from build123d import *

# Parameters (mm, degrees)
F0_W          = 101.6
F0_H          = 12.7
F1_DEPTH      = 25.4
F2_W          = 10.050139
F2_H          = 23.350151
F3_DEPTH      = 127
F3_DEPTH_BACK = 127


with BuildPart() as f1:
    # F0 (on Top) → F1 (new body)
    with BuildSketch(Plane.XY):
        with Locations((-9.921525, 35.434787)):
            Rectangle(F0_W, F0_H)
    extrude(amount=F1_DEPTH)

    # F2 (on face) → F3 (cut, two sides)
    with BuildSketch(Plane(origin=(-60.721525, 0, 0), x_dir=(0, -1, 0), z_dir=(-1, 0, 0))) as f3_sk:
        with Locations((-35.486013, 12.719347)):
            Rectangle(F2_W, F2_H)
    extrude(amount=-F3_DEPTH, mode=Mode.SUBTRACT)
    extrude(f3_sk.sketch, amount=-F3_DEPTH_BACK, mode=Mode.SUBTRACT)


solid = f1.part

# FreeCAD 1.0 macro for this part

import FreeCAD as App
import Part
import Sketcher
from FreeCAD import Vector
Q = App.Units.Quantity


def add_polygon(sketch, points):
    """Adds a closed chain of lines whose ends are joined by coincident constraints."""
    first, n = sketch.GeometryCount, len(points)
    for a, b in zip(points, points[1:] + points[:1]):
        sketch.addGeometry(Part.LineSegment(App.Vector(*a, 0), App.Vector(*b, 0)), False)
    for i in range(n):
        sketch.addConstraint(Sketcher.Constraint("Coincident", first + i, 2, first + (i + 1) % n, 1))

doc = App.newDocument("Part")
params = doc.addObject("Spreadsheet::Sheet", "Params")
for row, (alias, value) in enumerate([
    ("sketch1_width", "4 in"),
    ("sketch1_height", "0.5 in"),
    ("pad1_length", "1 in"),
    ("pocket1_length", "5 in"),
    ("pocket2_length", "5 in"),
], start=1):
    params.set(f"A{row}", alias)
    params.set(f"B{row}", "=" + value)
    params.setAlias(f"B{row}", alias)

body = doc.addObject("PartDesign::Body", "Body")

sketch1 = body.newObject("Sketcher::SketchObject", "Sketch")
sketch1.AttachmentSupport = (doc.getObject("XY_Plane"), [""])
sketch1.MapMode = "FlatFace"
add_polygon(sketch1, [(-61, 42), (-61, 29), (41, 29), (41, 42)])
sketch1.addConstraint([
    Sketcher.Constraint("Vertical", 0),
    Sketcher.Constraint("Horizontal", 1),
    Sketcher.Constraint("Vertical", 2),
    Sketcher.Constraint("Horizontal", 3),
    Sketcher.Constraint("DistanceX", 1, 1, 1, 2, Q("4 in")),
    Sketcher.Constraint("DistanceY", 0, 2, 0, 1, Q("0.5 in")),
    Sketcher.Constraint("DistanceX", 0, 2, -1, 1, Q("60.721525 mm")),
    Sketcher.Constraint("DistanceY", -1, 1, 0, 2, Q("29.084787 mm")),
])
sketch1.setExpression("Constraints[8]", "Params.sketch1_width")
sketch1.setExpression("Constraints[9]", "Params.sketch1_height")
pad1 = body.newObject("PartDesign::Pad", "Pad")
pad1.Profile = sketch1
pad1.setExpression("Length", "Params.pad1_length")

sketch2 = body.newObject("Sketcher::SketchObject", "Sketch001")
sketch2.AttachmentSupport = (doc.getObject("YZ_Plane"), [""])
sketch2.MapMode = "FlatFace"
sketch2.AttachmentOffset = App.Placement(Vector(0, 0, -60.721525), App.Rotation())
add_polygon(sketch2, [(41, 24), (41, 1), (30, 1), (30, 24)])
sketch2.addConstraint([
    Sketcher.Constraint("Vertical", 0),
    Sketcher.Constraint("Horizontal", 1),
    Sketcher.Constraint("Vertical", 2),
    Sketcher.Constraint("Horizontal", 3),
    Sketcher.Constraint("DistanceX", 1, 2, 1, 1, Q("10.050139 mm")),
    Sketcher.Constraint("DistanceY", 0, 2, 0, 1, Q("23.350151 mm")),
    Sketcher.Constraint("DistanceY", -1, 1, 0, 2, Q("1.044272 mm")),
    Sketcher.Constraint("DistanceX", -1, 1, 0, 2, Q("40.511083 mm")),
])
pocket1 = body.newObject("PartDesign::Pocket", "Pocket")
pocket1.Profile = sketch2
pocket1.setExpression("Length", "Params.pocket1_length")
pocket1.Reversed = True
pocket2 = body.newObject("PartDesign::Pocket", "Pocket001")
pocket2.Profile = sketch2
pocket2.setExpression("Length", "Params.pocket2_length")
pocket2.Reversed = True

doc.recompute()
